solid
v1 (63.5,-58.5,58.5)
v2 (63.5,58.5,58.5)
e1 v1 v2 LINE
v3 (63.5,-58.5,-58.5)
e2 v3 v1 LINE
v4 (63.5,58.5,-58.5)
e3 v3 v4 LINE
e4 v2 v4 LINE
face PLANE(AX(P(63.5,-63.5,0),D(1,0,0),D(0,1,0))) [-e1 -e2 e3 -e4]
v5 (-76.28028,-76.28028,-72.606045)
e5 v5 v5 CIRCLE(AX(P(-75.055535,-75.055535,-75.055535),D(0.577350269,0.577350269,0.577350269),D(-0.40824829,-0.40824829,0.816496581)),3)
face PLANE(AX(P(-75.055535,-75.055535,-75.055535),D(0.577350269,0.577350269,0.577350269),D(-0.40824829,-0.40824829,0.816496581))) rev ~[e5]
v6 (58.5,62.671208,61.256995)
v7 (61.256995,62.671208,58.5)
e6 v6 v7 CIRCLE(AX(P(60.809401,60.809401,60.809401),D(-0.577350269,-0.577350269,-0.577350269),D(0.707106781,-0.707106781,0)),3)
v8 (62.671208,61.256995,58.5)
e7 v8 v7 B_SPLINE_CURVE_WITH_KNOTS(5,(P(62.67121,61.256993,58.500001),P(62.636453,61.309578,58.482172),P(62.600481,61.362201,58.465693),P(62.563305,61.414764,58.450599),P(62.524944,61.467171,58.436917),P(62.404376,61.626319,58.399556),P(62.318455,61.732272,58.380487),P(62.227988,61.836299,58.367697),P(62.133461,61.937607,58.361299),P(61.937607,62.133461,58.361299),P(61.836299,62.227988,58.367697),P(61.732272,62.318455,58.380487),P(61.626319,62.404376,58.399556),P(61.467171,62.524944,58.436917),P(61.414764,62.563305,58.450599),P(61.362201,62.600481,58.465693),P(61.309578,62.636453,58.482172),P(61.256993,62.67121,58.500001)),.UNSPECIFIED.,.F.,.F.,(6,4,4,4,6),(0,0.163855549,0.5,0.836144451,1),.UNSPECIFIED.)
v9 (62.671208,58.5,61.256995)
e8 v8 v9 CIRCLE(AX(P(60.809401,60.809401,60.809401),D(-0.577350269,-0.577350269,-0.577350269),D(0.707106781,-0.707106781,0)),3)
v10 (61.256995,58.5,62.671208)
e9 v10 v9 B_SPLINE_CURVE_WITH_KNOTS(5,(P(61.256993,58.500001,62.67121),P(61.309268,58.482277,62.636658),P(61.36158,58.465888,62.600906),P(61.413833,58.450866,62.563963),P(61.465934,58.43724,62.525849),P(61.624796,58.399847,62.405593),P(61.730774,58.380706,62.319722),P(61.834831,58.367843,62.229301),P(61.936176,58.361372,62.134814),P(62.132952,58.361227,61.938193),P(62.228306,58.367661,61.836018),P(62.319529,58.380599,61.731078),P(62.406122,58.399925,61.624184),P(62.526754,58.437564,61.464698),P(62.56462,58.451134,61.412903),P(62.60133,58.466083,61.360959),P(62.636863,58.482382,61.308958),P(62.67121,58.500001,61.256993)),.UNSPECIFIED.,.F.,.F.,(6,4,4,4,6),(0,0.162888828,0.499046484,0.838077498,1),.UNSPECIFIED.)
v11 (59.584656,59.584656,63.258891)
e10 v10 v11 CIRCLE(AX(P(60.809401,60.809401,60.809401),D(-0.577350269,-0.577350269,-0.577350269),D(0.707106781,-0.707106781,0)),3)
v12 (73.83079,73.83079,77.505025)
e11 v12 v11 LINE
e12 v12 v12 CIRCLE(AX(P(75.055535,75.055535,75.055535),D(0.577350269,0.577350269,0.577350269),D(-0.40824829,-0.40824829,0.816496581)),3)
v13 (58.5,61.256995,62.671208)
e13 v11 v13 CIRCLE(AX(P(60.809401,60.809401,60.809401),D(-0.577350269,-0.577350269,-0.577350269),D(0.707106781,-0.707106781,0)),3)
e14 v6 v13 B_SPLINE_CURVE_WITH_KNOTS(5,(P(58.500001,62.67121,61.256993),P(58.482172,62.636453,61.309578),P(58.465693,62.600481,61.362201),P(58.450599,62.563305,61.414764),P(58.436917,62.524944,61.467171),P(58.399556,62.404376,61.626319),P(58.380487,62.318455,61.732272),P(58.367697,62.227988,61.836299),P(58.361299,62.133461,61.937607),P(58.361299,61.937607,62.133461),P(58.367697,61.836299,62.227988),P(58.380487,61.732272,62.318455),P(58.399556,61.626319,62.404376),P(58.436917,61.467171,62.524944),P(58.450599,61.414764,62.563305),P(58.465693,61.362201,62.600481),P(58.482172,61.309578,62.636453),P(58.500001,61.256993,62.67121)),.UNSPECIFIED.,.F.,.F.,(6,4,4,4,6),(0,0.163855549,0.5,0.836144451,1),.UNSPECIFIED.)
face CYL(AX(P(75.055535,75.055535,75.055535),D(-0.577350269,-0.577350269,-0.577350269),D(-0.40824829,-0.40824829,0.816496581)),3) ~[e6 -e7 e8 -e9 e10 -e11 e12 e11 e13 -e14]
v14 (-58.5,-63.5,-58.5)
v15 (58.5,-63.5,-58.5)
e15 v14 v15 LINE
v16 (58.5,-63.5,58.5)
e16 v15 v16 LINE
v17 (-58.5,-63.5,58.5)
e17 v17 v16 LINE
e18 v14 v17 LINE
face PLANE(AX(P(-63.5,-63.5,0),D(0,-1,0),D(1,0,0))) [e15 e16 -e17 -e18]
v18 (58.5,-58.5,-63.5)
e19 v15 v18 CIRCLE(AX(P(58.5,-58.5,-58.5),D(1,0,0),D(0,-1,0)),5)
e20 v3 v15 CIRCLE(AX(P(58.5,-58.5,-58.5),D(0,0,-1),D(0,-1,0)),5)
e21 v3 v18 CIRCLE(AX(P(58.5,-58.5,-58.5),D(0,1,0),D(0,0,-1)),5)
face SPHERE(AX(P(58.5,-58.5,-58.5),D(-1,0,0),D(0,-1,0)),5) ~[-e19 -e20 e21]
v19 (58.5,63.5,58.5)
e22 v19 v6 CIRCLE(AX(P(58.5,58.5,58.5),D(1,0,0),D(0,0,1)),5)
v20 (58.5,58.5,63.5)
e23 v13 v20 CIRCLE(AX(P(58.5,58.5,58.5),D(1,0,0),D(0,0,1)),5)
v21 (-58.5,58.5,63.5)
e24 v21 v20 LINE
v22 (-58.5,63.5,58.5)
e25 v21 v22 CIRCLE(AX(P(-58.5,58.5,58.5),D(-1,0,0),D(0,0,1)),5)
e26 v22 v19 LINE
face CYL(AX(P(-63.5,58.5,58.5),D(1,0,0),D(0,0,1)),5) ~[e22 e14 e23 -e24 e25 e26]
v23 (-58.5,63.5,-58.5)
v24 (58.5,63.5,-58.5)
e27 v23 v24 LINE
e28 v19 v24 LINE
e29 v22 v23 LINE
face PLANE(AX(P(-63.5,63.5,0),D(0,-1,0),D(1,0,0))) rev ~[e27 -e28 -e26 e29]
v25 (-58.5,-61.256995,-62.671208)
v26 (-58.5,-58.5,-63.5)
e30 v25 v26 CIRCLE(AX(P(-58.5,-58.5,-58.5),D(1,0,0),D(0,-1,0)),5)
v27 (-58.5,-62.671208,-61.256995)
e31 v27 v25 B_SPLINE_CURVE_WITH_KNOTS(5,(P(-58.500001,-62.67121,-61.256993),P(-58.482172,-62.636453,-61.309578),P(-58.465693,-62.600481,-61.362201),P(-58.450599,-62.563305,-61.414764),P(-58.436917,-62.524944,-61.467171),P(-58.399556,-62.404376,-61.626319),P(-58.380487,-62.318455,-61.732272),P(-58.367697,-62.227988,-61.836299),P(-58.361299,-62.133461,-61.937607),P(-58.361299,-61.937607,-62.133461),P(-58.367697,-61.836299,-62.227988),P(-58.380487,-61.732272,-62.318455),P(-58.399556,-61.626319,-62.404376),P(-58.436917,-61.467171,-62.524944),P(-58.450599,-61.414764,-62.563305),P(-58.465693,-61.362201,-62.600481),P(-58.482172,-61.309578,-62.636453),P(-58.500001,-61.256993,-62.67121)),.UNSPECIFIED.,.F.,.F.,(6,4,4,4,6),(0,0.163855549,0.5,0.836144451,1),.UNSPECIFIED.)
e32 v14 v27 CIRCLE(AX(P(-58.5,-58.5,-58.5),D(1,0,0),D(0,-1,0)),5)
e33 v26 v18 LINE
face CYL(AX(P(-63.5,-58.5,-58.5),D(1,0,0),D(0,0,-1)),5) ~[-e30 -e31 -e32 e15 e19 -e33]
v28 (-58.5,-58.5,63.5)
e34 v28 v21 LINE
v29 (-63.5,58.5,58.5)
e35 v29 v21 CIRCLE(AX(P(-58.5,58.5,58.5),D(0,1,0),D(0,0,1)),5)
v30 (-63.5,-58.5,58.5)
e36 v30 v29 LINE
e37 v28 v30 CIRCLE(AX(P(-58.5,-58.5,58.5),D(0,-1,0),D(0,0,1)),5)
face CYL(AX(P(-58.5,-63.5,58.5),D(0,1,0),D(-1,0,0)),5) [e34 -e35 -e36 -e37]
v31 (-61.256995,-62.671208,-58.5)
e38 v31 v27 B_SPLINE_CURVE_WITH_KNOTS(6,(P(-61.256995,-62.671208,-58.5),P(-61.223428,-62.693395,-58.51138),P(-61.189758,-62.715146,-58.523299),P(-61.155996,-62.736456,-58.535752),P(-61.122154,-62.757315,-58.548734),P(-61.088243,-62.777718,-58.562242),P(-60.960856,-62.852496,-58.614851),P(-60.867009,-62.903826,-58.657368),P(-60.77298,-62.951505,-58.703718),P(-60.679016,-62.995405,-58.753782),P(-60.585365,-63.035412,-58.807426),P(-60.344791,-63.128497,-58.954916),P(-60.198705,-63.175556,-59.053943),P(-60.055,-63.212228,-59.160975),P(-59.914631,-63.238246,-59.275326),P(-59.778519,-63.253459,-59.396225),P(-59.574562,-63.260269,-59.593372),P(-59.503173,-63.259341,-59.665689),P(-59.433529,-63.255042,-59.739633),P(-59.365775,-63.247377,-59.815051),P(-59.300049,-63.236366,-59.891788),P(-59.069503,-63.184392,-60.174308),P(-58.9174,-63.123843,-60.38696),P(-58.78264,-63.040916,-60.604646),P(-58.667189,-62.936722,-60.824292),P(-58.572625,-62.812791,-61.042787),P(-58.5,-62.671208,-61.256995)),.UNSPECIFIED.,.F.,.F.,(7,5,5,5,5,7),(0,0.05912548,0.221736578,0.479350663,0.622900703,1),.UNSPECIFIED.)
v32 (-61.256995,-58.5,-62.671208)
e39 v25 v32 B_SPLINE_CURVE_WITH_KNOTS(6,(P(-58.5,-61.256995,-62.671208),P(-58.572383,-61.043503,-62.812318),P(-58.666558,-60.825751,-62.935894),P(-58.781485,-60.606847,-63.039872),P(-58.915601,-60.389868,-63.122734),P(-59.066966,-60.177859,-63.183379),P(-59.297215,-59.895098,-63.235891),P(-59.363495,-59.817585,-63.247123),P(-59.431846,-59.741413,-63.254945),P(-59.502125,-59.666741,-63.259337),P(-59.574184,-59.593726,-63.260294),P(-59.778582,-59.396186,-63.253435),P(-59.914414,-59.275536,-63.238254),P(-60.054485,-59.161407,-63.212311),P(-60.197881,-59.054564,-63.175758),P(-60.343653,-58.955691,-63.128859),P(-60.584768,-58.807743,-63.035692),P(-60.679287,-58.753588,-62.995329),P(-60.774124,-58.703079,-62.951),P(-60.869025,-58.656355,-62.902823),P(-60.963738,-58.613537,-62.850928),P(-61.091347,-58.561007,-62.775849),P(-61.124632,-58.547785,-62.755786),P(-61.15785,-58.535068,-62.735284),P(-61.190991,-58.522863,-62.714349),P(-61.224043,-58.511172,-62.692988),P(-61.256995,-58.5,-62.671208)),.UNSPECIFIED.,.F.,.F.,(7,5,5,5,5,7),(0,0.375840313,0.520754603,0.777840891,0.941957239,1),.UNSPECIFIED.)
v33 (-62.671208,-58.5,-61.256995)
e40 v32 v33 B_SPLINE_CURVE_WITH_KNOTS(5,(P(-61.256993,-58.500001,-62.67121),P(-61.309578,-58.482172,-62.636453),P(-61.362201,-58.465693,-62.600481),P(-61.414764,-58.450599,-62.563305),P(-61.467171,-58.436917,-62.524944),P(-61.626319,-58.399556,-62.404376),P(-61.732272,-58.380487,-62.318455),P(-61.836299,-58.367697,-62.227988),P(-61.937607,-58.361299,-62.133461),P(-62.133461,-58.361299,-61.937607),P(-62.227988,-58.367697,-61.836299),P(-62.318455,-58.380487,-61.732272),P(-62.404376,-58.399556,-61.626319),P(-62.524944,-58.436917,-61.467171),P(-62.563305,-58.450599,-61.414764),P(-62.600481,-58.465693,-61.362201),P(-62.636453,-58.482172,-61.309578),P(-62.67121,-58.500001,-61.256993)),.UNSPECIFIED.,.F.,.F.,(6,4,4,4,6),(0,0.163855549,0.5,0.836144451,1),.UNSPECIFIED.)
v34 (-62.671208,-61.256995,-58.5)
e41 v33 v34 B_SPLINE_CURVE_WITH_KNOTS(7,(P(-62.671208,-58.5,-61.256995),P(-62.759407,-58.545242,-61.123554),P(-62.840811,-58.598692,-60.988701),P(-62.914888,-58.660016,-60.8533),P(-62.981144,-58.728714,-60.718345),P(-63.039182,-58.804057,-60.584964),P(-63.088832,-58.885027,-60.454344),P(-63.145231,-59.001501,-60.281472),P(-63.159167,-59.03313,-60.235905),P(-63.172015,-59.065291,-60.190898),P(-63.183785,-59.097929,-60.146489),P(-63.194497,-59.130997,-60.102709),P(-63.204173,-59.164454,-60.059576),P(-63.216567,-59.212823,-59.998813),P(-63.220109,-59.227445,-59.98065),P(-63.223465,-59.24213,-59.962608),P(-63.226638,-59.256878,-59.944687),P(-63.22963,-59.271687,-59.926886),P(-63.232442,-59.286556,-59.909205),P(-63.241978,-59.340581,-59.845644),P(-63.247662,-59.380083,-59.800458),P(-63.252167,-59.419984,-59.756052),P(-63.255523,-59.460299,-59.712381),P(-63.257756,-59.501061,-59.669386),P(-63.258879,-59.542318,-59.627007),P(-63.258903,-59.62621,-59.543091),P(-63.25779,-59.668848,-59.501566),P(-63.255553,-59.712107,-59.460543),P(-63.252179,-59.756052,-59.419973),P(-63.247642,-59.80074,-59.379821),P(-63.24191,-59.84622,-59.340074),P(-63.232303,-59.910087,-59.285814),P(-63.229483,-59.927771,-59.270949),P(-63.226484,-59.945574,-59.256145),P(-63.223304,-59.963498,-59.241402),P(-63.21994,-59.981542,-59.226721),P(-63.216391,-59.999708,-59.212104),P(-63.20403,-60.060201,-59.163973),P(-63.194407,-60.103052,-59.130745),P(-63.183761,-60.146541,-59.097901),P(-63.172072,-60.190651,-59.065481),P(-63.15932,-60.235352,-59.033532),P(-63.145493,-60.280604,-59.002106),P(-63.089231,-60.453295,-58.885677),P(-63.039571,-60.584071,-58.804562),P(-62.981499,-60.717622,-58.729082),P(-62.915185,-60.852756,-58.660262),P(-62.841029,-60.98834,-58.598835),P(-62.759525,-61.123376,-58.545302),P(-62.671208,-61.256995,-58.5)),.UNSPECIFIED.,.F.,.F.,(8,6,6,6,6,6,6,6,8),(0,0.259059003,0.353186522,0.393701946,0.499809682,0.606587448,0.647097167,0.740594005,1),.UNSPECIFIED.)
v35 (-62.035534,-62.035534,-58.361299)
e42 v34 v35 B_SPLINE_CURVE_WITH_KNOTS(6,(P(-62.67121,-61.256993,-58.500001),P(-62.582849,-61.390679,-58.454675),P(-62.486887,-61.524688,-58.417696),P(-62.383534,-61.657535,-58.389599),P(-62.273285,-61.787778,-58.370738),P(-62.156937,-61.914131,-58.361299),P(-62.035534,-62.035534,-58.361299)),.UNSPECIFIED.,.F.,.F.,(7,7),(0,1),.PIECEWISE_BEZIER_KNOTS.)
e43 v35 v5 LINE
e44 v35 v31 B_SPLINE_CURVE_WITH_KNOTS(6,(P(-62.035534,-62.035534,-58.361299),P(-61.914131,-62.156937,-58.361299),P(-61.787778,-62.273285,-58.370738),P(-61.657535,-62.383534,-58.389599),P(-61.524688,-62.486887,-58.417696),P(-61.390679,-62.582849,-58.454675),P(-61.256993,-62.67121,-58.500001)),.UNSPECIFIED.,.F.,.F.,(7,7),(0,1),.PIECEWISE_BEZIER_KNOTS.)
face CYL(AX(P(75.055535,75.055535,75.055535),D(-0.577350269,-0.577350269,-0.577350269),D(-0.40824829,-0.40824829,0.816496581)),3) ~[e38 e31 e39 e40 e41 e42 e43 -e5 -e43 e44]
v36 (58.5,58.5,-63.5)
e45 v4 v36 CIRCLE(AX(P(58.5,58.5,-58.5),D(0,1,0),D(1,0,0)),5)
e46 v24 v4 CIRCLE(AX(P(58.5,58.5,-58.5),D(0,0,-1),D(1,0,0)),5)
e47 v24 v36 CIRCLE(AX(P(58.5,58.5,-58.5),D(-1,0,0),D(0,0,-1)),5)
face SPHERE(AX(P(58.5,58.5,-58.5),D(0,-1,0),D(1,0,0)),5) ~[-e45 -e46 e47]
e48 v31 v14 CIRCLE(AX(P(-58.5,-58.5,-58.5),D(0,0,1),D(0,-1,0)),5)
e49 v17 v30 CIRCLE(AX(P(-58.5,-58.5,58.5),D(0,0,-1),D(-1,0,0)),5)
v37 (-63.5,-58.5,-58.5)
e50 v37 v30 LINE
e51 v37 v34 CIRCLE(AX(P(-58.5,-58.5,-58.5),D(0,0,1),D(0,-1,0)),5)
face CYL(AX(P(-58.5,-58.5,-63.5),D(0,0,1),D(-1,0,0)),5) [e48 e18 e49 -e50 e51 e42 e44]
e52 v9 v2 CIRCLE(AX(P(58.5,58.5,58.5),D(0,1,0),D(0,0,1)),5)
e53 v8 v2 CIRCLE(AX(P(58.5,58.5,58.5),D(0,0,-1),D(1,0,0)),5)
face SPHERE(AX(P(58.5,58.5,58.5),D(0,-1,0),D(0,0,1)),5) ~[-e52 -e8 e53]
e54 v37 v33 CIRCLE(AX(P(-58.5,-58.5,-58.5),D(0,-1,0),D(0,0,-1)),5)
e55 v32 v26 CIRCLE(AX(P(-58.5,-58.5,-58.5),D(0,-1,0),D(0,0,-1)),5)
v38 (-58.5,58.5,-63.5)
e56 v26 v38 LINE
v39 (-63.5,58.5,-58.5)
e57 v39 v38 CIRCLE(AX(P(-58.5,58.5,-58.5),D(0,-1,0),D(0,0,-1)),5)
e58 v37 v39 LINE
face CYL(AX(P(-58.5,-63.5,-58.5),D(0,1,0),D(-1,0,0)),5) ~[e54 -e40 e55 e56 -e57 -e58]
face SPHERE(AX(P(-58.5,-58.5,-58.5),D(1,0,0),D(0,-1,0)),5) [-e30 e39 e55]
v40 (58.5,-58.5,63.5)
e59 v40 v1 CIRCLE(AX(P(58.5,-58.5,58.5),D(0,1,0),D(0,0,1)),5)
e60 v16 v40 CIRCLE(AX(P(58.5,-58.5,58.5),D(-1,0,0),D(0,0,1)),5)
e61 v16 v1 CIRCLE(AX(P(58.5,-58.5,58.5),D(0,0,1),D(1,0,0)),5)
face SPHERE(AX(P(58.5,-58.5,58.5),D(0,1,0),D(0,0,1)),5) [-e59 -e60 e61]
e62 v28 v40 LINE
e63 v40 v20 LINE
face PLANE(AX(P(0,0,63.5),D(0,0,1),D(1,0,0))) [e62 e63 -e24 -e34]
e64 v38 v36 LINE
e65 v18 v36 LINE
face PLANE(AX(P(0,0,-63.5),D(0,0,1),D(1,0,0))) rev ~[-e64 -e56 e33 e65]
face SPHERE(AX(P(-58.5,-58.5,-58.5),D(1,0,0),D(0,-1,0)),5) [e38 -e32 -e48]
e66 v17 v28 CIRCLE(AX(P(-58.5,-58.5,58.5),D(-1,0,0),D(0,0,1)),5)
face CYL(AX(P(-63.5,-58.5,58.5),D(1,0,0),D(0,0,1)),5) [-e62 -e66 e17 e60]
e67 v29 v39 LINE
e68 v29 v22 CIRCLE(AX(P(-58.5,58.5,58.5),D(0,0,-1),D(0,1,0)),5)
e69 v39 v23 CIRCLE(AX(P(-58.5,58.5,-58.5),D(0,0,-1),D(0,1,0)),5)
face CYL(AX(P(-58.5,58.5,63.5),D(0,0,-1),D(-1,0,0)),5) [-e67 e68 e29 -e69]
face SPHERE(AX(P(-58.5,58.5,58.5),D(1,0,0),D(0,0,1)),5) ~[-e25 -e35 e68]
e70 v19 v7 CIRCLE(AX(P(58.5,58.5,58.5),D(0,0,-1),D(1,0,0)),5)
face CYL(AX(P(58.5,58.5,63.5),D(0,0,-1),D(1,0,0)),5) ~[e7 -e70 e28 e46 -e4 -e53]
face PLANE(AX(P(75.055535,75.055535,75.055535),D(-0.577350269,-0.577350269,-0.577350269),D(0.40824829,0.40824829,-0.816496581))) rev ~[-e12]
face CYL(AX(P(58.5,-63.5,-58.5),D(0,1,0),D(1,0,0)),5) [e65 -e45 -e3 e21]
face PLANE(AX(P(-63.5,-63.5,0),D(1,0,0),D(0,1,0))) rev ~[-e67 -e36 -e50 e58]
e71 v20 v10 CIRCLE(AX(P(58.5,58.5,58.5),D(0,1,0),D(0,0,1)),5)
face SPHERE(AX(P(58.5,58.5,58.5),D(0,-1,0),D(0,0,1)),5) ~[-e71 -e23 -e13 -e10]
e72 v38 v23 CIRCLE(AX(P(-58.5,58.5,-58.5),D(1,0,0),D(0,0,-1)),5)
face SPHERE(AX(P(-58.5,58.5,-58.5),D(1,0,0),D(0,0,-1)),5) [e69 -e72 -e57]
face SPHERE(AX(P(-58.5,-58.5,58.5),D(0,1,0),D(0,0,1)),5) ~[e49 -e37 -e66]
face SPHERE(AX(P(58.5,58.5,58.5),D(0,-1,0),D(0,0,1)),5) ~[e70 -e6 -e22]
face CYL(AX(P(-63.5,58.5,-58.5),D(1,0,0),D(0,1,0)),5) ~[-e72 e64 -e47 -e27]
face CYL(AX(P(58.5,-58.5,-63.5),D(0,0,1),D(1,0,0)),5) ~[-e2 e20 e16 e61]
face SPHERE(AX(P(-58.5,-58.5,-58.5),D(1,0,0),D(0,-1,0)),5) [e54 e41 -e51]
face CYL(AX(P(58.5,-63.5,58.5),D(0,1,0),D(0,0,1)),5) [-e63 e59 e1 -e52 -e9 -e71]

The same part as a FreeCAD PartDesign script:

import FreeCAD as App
import Part
import Sketcher
from FreeCAD import Vector
Q = App.Units.Quantity


def add_polygon(sketch, points):
    """Adds a closed chain of lines whose ends are joined by coincident constraints."""
    first, n = sketch.GeometryCount, len(points)
    for a, b in zip(points, points[1:] + points[:1]):
        sketch.addGeometry(Part.LineSegment(App.Vector(*a, 0), App.Vector(*b, 0)), False)
    for i in range(n):
        sketch.addConstraint(Sketcher.Constraint("Coincident", first + i, 2, first + (i + 1) % n, 1))

doc = App.newDocument("Part")
body = doc.addObject("PartDesign::Body", "Body")

sketch1 = doc.addObject("Sketcher::SketchObject", "Sketch")
body.addObject(sketch1)
sketch1.AttachmentSupport = (doc.XY_Plane, [""])
sketch1.MapMode = "FlatFace"
add_polygon(sketch1, [(-64, 64), (-64, -64), (64, -64), (64, 64)])
sketch1.addConstraint([
    Sketcher.Constraint("Vertical", 0),
    Sketcher.Constraint("Horizontal", 1),
    Sketcher.Constraint("Vertical", 2),
    Sketcher.Constraint("Horizontal", 3),
    Sketcher.Constraint("Symmetric", 0, 2, 2, 2, -1, 1),
    Sketcher.Constraint("Equal", 3, 0),
    Sketcher.Constraint("DistanceX", 1, 1, 1, 2, Q("127 mm")),
])
pad1 = doc.addObject("PartDesign::Pad", "Pad")
body.addObject(pad1)
pad1.Profile = sketch1
pad1.Length = 127
pad1.Midplane = True
doc.recompute()

fillet = doc.addObject("PartDesign::Fillet", "Fillet")
body.addObject(fillet)
fillet.Base = (pad1, ["Edge1"])
fillet.UseAllEdges = True
fillet.Radius = 5

sketch2 = doc.addObject("Sketcher::SketchObject", "Sketch001")
body.addObject(sketch2)
sketch2.Placement = App.Placement(Vector(0, 0, 0), App.Rotation(Vector(0.707106781, 0.707106781, 0), Vector(0, 0, 0.999999999), Vector(0.707106781, -0.707106781, 0), "ZXY"))
add_polygon(sketch2, [(-106.1, -75.1), (106.1, 75.1), (104.4, 77.5), (-107.9, -72.6)])
sketch2.addGeometry(Part.LineSegment(Vector(-106.1, -75.1, 0), Vector(106.1, 75.1, 0)), True)
sketch2.addConstraint([
    Sketcher.Constraint("Coincident", 4, 1, 3, 2),
    Sketcher.Constraint("Coincident", 4, 2, 0, 2),
    Sketcher.Constraint("Symmetric", 0, 2, 3, 2, -1, 1),
    Sketcher.Constraint("Perpendicular", 0, 1),
    Sketcher.Constraint("Perpendicular", 1, 2),
    Sketcher.Constraint("Perpendicular", 2, 3),
    Sketcher.Constraint("Distance", 0, Q("260 mm")),
    Sketcher.Constraint("Distance", 1, Q("3 mm")),
    Sketcher.Constraint("DistanceX", 1, 2, 0, 2, Q("1.732051 mm")),
])
revolution = doc.addObject("PartDesign::Revolution", "Revolution")
body.addObject(revolution)
revolution.Profile = sketch2
revolution.ReferenceAxis = (sketch2, ["Axis0"])
revolution.Angle = 360

doc.recompute()
